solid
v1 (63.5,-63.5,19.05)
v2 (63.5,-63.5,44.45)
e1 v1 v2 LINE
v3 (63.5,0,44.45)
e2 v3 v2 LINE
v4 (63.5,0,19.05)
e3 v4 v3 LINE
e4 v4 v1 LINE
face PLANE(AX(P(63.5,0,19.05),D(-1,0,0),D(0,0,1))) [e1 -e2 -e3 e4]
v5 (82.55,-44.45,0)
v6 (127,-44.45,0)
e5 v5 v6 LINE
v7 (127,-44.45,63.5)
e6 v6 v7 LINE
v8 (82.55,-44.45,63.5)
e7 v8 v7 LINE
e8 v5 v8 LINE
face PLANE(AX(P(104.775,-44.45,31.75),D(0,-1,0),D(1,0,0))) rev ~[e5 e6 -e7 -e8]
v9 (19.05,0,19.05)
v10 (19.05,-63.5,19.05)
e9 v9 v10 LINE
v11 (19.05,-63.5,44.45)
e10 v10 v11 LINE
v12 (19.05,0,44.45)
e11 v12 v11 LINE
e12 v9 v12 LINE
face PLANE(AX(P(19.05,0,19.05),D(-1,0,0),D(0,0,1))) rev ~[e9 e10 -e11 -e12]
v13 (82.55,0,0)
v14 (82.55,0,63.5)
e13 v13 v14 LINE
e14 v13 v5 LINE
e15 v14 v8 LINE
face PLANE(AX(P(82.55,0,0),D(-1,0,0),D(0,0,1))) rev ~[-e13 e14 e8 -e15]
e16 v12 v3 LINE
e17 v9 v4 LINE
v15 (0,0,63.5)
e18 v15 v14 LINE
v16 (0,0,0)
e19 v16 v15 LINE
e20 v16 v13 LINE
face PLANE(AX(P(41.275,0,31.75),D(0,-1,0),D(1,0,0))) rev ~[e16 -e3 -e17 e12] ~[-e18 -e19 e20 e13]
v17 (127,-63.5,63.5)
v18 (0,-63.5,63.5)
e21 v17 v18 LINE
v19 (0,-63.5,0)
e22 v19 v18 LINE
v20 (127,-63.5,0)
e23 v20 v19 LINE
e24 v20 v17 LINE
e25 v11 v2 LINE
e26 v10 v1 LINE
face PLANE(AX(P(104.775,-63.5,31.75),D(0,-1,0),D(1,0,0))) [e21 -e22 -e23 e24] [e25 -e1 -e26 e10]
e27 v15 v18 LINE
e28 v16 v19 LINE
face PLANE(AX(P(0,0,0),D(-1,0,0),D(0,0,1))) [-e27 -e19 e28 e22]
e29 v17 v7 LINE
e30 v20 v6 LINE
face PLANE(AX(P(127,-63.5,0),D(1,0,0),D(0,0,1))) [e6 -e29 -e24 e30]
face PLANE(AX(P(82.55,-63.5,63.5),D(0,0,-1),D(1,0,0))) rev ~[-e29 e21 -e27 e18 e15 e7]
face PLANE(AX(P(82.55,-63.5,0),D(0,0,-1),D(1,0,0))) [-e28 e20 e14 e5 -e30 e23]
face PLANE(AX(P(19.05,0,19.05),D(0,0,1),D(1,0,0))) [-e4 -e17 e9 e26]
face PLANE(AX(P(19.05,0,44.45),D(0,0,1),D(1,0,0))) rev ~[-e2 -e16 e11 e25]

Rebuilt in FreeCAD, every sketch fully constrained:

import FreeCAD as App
import Part
import Sketcher
Q = App.Units.Quantity


def add_polygon(sketch, points):
    """Adds a closed chain of lines whose ends are joined by coincident constraints."""
    first, n = sketch.GeometryCount, len(points)
    for a, b in zip(points, points[1:] + points[:1]):
        sketch.addGeometry(Part.LineSegment(App.Vector(*a, 0), App.Vector(*b, 0)), False)
    for i in range(n):
        sketch.addConstraint(Sketcher.Constraint("Coincident", first + i, 2, first + (i + 1) % n, 1))

doc = App.newDocument("Part")
body = doc.addObject("PartDesign::Body", "Body")

# Sketch on XZ plane
sketch1 = body.newObject("Sketcher::SketchObject", "Sketch")
sketch1.AttachmentSupport = (doc.getObject("XZ_Plane"), [""])
sketch1.MapMode = "FlatFace"
add_polygon(sketch1, [(0, 63.5), (0, 0), (82.55, 0), (82.55, 63.5)])  # lines 0-3
add_polygon(sketch1, [(63.5, 19.05), (19.05, 19.05), (19.05, 44.45), (63.5, 44.45)])  # lines 4-7
sketch1.addConstraint([
    Sketcher.Constraint("Vertical", 0),
    Sketcher.Constraint("Horizontal", 1),
    Sketcher.Constraint("Vertical", 2),
    Sketcher.Constraint("Horizontal", 3),
    Sketcher.Constraint("Horizontal", 4),
    Sketcher.Constraint("Vertical", 5),
    Sketcher.Constraint("Horizontal", 6),
    Sketcher.Constraint("Vertical", 7),
    Sketcher.Constraint("Coincident", 0, 2, -1, 1),
    Sketcher.Constraint("DistanceY", 5, 1, 5, 2, Q("1 in")),
    Sketcher.Constraint("DistanceY", 0, 2, 0, 1, Q("2.5 in")),
    Sketcher.Constraint("DistanceX", 1, 1, 1, 2, Q("3.25 in")),
    Sketcher.Constraint("DistanceX", 4, 2, 4, 1, Q("1.75 in")),
    Sketcher.Constraint("DistanceX", -1, 1, 6, 2, Q("2.5 in")),
    Sketcher.Constraint("DistanceY", -1, 1, 4, 2, Q("0.75 in")),
])
pad1 = body.newObject("PartDesign::Pad", "Pad")
pad1.Profile = sketch1
pad1.Length = Q("2.5 in")

# Sketch on XZ plane
sketch2 = body.newObject("Sketcher::SketchObject", "Sketch001")
sketch2.AttachmentSupport = (doc.getObject("XZ_Plane"), [""])
sketch2.MapMode = "FlatFace"
sketch2.AttachmentOffset = App.Placement(App.Vector(0, 0, 2.5 * 25.4), App.Rotation())
add_polygon(sketch2, [(82.55, 63.5), (82.55, 0), (127, 0), (127, 63.5)])  # lines 0-3
sketch2.addConstraint([
    Sketcher.Constraint("Vertical", 0),
    Sketcher.Constraint("Horizontal", 1),
    Sketcher.Constraint("Vertical", 2),
    Sketcher.Constraint("Horizontal", 3),
    Sketcher.Constraint("PointOnObject", 0, 2, -1),
    Sketcher.Constraint("DistanceY", 0, 2, 0, 1, Q("2.5 in")),
    Sketcher.Constraint("DistanceX", -1, 1, 1, 2, Q("5 in")),
    Sketcher.Constraint("DistanceX", 1, 1, 1, 2, Q("1.75 in")),
])
pad2 = body.newObject("PartDesign::Pad", "Pad001")
pad2.Profile = sketch2
pad2.Length = Q("0.75 in")
pad2.Reversed = True

doc.recompute()
